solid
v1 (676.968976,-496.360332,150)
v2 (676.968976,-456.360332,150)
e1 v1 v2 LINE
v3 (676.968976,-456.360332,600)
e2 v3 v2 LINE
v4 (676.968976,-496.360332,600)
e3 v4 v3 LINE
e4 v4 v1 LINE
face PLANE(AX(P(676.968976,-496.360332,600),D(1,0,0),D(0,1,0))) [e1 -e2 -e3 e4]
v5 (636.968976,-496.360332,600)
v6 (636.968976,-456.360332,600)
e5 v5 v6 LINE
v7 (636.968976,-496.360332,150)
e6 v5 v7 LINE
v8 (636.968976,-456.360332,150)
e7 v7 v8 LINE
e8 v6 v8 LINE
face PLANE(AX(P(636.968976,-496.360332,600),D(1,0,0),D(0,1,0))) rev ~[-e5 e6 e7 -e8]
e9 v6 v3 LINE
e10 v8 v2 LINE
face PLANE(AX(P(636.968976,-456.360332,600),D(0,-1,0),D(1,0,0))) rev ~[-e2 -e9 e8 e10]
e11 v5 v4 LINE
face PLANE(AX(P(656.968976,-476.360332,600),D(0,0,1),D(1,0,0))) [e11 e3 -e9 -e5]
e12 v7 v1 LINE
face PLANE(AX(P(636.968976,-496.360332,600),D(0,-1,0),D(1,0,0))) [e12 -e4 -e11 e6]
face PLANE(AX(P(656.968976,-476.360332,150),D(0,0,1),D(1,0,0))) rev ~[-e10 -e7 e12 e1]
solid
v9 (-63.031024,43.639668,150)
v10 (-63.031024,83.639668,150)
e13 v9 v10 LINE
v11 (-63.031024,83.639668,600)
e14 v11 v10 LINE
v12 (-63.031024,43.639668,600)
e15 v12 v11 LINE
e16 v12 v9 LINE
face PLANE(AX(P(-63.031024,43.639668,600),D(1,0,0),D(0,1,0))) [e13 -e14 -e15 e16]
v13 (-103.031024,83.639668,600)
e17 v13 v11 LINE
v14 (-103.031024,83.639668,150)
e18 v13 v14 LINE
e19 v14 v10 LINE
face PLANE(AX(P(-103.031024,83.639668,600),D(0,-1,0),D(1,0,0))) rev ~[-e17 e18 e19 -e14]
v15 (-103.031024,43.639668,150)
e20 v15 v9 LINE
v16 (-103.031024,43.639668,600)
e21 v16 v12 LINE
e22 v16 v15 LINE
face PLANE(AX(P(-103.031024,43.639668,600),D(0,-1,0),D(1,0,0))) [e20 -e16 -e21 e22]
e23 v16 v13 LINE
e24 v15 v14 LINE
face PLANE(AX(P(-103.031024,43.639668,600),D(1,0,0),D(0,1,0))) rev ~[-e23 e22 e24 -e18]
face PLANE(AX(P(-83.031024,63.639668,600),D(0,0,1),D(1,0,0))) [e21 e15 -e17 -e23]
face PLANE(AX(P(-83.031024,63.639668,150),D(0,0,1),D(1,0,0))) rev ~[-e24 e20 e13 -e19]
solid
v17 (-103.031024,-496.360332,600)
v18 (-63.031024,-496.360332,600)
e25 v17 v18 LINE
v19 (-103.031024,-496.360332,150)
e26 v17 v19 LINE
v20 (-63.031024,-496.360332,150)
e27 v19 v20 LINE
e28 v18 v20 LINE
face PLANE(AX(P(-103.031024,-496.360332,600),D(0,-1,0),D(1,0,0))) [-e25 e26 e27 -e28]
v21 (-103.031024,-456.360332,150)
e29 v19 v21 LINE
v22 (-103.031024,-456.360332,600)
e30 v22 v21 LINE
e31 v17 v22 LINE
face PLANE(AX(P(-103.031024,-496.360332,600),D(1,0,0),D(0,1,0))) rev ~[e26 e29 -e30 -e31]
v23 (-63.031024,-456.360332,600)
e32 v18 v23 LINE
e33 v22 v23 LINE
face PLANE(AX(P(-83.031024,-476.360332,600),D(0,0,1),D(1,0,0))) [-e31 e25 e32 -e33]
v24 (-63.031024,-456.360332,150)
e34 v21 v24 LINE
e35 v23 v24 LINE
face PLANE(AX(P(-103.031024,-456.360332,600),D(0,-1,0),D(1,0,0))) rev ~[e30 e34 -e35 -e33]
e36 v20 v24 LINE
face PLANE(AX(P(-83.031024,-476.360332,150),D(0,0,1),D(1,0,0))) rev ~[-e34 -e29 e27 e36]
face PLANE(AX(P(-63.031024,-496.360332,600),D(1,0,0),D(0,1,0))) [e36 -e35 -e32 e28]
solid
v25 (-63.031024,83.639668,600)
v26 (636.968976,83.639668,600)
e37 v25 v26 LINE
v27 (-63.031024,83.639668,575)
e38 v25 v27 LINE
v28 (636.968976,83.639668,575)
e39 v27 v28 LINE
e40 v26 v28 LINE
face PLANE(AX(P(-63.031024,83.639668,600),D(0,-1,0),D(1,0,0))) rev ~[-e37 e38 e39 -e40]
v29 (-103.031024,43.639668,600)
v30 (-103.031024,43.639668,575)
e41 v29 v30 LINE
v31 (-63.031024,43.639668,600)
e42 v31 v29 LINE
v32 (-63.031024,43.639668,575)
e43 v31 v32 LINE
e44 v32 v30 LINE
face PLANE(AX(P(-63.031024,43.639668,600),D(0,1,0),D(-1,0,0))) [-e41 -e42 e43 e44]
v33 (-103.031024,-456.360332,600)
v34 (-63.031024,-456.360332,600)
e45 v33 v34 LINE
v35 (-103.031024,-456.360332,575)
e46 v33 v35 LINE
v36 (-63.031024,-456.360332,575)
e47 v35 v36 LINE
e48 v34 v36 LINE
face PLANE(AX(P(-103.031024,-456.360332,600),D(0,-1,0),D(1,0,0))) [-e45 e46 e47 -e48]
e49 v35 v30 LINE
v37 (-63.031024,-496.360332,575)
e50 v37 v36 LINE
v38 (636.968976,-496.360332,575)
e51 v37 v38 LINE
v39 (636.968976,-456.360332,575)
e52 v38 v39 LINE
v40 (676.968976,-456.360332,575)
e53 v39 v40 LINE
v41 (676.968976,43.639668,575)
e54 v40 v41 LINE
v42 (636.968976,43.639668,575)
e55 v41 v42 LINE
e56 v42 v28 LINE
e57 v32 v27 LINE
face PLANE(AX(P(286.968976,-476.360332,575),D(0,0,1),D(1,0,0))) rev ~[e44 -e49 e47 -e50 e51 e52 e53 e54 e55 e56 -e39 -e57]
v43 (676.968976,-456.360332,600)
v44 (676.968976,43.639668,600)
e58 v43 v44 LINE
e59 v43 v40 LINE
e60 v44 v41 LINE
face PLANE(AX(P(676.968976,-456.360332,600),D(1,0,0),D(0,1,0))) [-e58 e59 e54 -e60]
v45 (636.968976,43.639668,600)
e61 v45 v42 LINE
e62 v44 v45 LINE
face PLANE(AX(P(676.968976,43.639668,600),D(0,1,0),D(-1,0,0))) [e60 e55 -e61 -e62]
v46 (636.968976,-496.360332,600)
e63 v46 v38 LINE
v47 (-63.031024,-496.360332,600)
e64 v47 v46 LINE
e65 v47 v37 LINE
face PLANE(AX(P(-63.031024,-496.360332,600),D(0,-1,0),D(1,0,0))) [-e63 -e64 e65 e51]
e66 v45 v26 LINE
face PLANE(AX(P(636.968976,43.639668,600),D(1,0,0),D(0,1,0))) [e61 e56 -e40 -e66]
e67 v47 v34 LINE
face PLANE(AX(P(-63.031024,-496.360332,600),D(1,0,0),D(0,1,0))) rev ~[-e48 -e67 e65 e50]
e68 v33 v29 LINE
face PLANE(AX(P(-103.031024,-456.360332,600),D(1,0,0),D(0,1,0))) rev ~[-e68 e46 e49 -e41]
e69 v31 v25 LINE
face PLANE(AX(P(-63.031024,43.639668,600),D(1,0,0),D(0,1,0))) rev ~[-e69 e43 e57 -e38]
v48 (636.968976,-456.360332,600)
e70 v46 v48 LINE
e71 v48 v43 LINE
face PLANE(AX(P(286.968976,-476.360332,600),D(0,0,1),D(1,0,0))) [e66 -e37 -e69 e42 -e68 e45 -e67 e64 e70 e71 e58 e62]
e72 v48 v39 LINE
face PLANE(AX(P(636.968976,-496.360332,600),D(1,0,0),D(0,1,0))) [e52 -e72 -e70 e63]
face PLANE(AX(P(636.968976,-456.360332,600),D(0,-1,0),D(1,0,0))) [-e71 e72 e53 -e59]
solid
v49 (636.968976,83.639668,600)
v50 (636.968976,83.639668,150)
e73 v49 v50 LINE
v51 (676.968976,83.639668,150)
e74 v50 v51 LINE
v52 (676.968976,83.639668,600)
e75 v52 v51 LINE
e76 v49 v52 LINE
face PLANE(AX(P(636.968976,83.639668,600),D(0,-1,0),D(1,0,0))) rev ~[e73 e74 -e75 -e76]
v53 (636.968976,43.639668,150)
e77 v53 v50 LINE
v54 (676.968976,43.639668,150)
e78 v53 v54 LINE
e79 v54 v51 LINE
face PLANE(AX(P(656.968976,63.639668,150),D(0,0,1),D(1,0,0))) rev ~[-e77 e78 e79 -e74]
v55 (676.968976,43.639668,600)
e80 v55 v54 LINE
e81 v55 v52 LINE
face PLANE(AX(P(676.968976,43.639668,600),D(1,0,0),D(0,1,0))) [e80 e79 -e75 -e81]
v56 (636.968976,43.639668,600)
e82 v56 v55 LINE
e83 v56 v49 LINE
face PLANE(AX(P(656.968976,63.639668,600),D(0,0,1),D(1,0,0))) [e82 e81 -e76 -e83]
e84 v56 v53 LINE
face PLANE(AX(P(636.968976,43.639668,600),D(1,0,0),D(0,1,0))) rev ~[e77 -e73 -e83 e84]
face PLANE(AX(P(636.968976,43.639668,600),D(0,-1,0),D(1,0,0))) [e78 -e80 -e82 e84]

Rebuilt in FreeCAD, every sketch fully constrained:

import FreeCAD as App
import Part
import Sketcher
from FreeCAD import Vector
Q = App.Units.Quantity


def add_polygon(sketch, points):
    """Adds a closed chain of lines whose ends are joined by coincident constraints."""
    first, n = sketch.GeometryCount, len(points)
    for a, b in zip(points, points[1:] + points[:1]):
        sketch.addGeometry(Part.LineSegment(App.Vector(*a, 0), App.Vector(*b, 0)), False)
    for i in range(n):
        sketch.addConstraint(Sketcher.Constraint("Coincident", first + i, 2, first + (i + 1) % n, 1))

doc = App.newDocument("Part")
body = doc.addObject("PartDesign::Body", "Body")
body.AllowCompound = True

# Sketch on XY plane
sketch1 = doc.addObject("Sketcher::SketchObject", "Sketch")
body.addObject(sketch1)
sketch1.AttachmentSupport = (doc.XY_Plane, [""])
sketch1.MapMode = "FlatFace"
sketch1.AttachmentOffset = App.Placement(Vector(0, 0, 600), App.Rotation())
add_polygon(sketch1, [(-103, -456), (-103, -496), (-63, -496), (-63, -456)])  # lines 0-3
add_polygon(sketch1, [(-103, 84), (-103, 44), (-63, 44), (-63, 84)])  # lines 4-7
add_polygon(sketch1, [(637, 84), (637, 44), (677, 44), (677, 84)])  # lines 8-11
add_polygon(sketch1, [(637, -456), (637, -496), (677, -496), (677, -456)])  # lines 12-15
sketch1.addConstraint(Sketcher.Constraint("Vertical", 0))
sketch1.addConstraint(Sketcher.Constraint("Horizontal", 1))
sketch1.addConstraint(Sketcher.Constraint("Vertical", 2))
sketch1.addConstraint(Sketcher.Constraint("Horizontal", 3))
sketch1.addConstraint(Sketcher.Constraint("Vertical", 4))
sketch1.addConstraint(Sketcher.Constraint("Horizontal", 5))
sketch1.addConstraint(Sketcher.Constraint("Vertical", 6))
sketch1.addConstraint(Sketcher.Constraint("Horizontal", 7))
sketch1.addConstraint(Sketcher.Constraint("Vertical", 8))
sketch1.addConstraint(Sketcher.Constraint("Horizontal", 9))
sketch1.addConstraint(Sketcher.Constraint("Vertical", 10))
sketch1.addConstraint(Sketcher.Constraint("Horizontal", 11))
sketch1.addConstraint(Sketcher.Constraint("Vertical", 12))
sketch1.addConstraint(Sketcher.Constraint("Horizontal", 13))
sketch1.addConstraint(Sketcher.Constraint("Vertical", 14))
sketch1.addConstraint(Sketcher.Constraint("Horizontal", 15))
sketch1.addConstraint(Sketcher.Constraint("Horizontal", 5, 2, 8, 2))
sketch1.addConstraint(Sketcher.Constraint("Horizontal", 7, 2, 10, 2))
sketch1.addConstraint(Sketcher.Constraint("Horizontal", 1, 2, 12, 2))
sketch1.addConstraint(Sketcher.Constraint("Horizontal", 3, 2, 14, 2))
sketch1.addConstraint(Sketcher.Constraint("Vertical", 3, 2, 4, 2))
sketch1.addConstraint(Sketcher.Constraint("Vertical", 2, 2, 5, 2))
sketch1.addConstraint(Sketcher.Constraint("Vertical", 11, 2, 12, 2))
sketch1.addConstraint(Sketcher.Constraint("Vertical", 10, 2, 13, 2))
sketch1.addConstraint(Sketcher.Constraint("Equal", 7, 9))
sketch1.addConstraint(Sketcher.Constraint("Equal", 15, 0))
sketch1.addConstraint(Sketcher.Constraint("Equal", 2, 4))
sketch1.addConstraint(Sketcher.Constraint("DistanceX", 1, 1, 1, 2, Q("40 mm")))
sketch1.addConstraint(Sketcher.Constraint("DistanceY", 3, 2, 4, 2, Q("500 mm")))
sketch1.addConstraint(Sketcher.Constraint("DistanceX", 5, 2, 8, 2, Q("700 mm")))
sketch1.addConstraint(Sketcher.Constraint("DistanceY", -1, 1, 6, 2, Q("83.639668 mm")))
sketch1.addConstraint(Sketcher.Constraint("DistanceX", 0, 2, -1, 1, Q("103.031024 mm")))
pad1 = doc.addObject("PartDesign::Pad", "Pad")
body.addObject(pad1)
pad1.Profile = sketch1
pad1.Length = 450
pad1.Reversed = True
body2 = doc.addObject("PartDesign::Body", "Body001")

# Sketch on XY plane
sketch2 = doc.addObject("Sketcher::SketchObject", "Sketch001")
body2.addObject(sketch2)
sketch2.AttachmentSupport = (doc.getObject("XY_Plane001"), [""])
sketch2.MapMode = "FlatFace"
sketch2.AttachmentOffset = App.Placement(Vector(0, 0, 600), App.Rotation())
add_polygon(sketch2, [(-63, -456), (-63, -496), (637, -496), (637, -456), (677, -456), (677, 44), (637, 44), (637, 84), (-63, 84), (-63, 44), (-103, 44), (-103, -456)])  # lines 0-11
sketch2.addConstraint(Sketcher.Constraint("Vertical", 0))
sketch2.addConstraint(Sketcher.Constraint("Horizontal", 1))
sketch2.addConstraint(Sketcher.Constraint("Vertical", 2))
sketch2.addConstraint(Sketcher.Constraint("Horizontal", 3))
sketch2.addConstraint(Sketcher.Constraint("Vertical", 4))
sketch2.addConstraint(Sketcher.Constraint("Horizontal", 5))
sketch2.addConstraint(Sketcher.Constraint("Vertical", 6))
sketch2.addConstraint(Sketcher.Constraint("Horizontal", 7))
sketch2.addConstraint(Sketcher.Constraint("Vertical", 8))
sketch2.addConstraint(Sketcher.Constraint("Horizontal", 9))
sketch2.addConstraint(Sketcher.Constraint("Vertical", 10))
sketch2.addConstraint(Sketcher.Constraint("Horizontal", 11))
sketch2.addConstraint(Sketcher.Constraint("Horizontal", 5, 2, 8, 2))
sketch2.addConstraint(Sketcher.Constraint("Horizontal", 3, 2, 10, 2))
sketch2.addConstraint(Sketcher.Constraint("Vertical", 2, 2, 5, 2))
sketch2.addConstraint(Sketcher.Constraint("Vertical", 0, 2, 7, 2))
sketch2.addConstraint(Sketcher.Constraint("Equal", 5, 9))
sketch2.addConstraint(Sketcher.Constraint("Equal", 11, 0))
sketch2.addConstraint(Sketcher.Constraint("Equal", 2, 6))
sketch2.addConstraint(Sketcher.Constraint("DistanceX", 1, 1, 1, 2, Q("700 mm")))
sketch2.addConstraint(Sketcher.Constraint("DistanceX", 3, 1, 3, 2, Q("40 mm")))
sketch2.addConstraint(Sketcher.Constraint("DistanceY", 4, 1, 4, 2, Q("500 mm")))
sketch2.addConstraint(Sketcher.Constraint("DistanceY", -1, 1, 6, 2, Q("83.639668 mm")))
sketch2.addConstraint(Sketcher.Constraint("DistanceX", 0, 2, -1, 1, Q("63.031024 mm")))
pad2 = doc.addObject("PartDesign::Pad", "Pad001")
body2.addObject(pad2)
pad2.Profile = sketch2
pad2.Length = 25
pad2.Reversed = True

doc.recompute()
